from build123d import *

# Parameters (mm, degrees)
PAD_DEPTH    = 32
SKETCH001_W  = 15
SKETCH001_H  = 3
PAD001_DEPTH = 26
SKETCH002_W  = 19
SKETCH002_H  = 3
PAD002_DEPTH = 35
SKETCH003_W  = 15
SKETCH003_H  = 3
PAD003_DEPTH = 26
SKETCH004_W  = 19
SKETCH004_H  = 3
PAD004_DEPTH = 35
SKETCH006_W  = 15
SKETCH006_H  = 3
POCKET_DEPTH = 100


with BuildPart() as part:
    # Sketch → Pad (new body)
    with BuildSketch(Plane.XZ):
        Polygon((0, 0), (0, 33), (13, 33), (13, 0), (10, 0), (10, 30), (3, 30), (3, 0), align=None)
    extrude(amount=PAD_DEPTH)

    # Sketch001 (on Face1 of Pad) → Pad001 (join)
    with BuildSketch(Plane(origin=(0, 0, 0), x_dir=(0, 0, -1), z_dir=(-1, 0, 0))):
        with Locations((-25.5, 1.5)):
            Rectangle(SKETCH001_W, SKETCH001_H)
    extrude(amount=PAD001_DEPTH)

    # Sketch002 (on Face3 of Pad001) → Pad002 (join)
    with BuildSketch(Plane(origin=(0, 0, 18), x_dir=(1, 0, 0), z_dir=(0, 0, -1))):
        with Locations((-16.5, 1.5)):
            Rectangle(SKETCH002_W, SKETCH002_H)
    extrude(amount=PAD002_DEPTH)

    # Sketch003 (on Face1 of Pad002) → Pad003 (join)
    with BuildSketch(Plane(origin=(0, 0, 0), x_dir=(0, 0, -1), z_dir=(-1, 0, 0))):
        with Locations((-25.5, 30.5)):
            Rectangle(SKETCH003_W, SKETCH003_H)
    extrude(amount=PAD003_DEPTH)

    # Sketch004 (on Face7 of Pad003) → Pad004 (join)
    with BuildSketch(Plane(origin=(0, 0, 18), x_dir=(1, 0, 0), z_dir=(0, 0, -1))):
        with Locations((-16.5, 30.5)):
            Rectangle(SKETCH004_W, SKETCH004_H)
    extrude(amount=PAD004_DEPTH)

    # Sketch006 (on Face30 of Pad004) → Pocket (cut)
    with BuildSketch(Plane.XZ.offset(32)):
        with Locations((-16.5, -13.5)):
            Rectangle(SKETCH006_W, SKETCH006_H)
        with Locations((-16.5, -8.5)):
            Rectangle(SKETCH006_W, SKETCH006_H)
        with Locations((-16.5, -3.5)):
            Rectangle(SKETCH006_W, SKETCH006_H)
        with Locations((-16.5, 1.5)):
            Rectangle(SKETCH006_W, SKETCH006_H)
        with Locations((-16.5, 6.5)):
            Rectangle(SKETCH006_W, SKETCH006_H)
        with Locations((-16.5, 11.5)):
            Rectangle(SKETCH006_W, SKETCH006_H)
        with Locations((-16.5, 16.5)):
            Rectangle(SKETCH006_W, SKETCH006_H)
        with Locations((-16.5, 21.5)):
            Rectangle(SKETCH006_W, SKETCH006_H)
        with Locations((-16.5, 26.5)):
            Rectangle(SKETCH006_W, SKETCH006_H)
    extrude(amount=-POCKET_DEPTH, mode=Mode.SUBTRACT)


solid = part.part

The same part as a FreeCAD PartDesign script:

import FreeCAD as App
import Part
import Sketcher

V = App.Vector
Q = App.Units.Quantity


def add_polygon(sketch, points):
    """Adds a closed chain of lines whose ends are joined by coincident constraints."""
    first, n = sketch.GeometryCount, len(points)
    for a, b in zip(points, points[1:] + points[:1]):
        sketch.addGeometry(Part.LineSegment(App.Vector(*a, 0), App.Vector(*b, 0)), False)
    for i in range(n):
        sketch.addConstraint(Sketcher.Constraint("Coincident", first + i, 2, first + (i + 1) % n, 1))

doc = App.newDocument("Part")
body = doc.addObject("PartDesign::Body", "Body")

# Sketch on XZ plane
sketch1 = body.newObject("Sketcher::SketchObject", "Sketch")
sketch1.AttachmentSupport = (doc.getObject("XZ_Plane"), [""])
sketch1.MapMode = "FlatFace"
add_polygon(sketch1, [(0, 33), (0, 0), (3, 0), (3, 30), (10, 30), (10, 0), (13, 0), (13, 33)])  # lines 0-7
sketch1.addConstraint(Sketcher.Constraint("Vertical", 0))
sketch1.addConstraint(Sketcher.Constraint("Horizontal", 1))
sketch1.addConstraint(Sketcher.Constraint("Vertical", 2))
sketch1.addConstraint(Sketcher.Constraint("Horizontal", 3))
sketch1.addConstraint(Sketcher.Constraint("Vertical", 4))
sketch1.addConstraint(Sketcher.Constraint("Horizontal", 5))
sketch1.addConstraint(Sketcher.Constraint("Vertical", 6))
sketch1.addConstraint(Sketcher.Constraint("Horizontal", 7))
sketch1.addConstraint(Sketcher.Constraint("Coincident", 0, 2, -1, 1))
sketch1.addConstraint(Sketcher.Constraint("PointOnObject", 4, 2, -1))
sketch1.addConstraint(Sketcher.Constraint("Equal", 1, 5))
sketch1.addConstraint(Sketcher.Constraint("DistanceX", 1, 1, 1, 2, Q("3 mm")))
sketch1.addConstraint(Sketcher.Constraint("DistanceX", 3, 1, 3, 2, Q("7 mm")))
sketch1.addConstraint(Sketcher.Constraint("DistanceY", 0, 2, 0, 1, Q("33 mm")))
sketch1.addConstraint(Sketcher.Constraint("DistanceY", 2, 1, 2, 2, Q("30 mm")))
pad1 = body.newObject("PartDesign::Pad", "Pad")
pad1.Profile = sketch1
pad1.Length = 32

# Sketch on YZ plane
sketch2 = body.newObject("Sketcher::SketchObject", "Sketch001")
sketch2.AttachmentSupport = (doc.getObject("YZ_Plane"), [""])
sketch2.MapMode = "FlatFace"
add_polygon(sketch2, [(-3, 33), (0, 33), (0, 18), (-3, 18)])  # lines 0-3
sketch2.addConstraint(Sketcher.Constraint("Horizontal", 0))
sketch2.addConstraint(Sketcher.Constraint("Vertical", 1))
sketch2.addConstraint(Sketcher.Constraint("Horizontal", 2))
sketch2.addConstraint(Sketcher.Constraint("Vertical", 3))
sketch2.addConstraint(Sketcher.Constraint("PointOnObject", 0, 2, -2))
sketch2.addConstraint(Sketcher.Constraint("DistanceX", 0, 1, 0, 2, Q("3 mm")))
sketch2.addConstraint(Sketcher.Constraint("DistanceY", 1, 2, 1, 1, Q("15 mm")))
sketch2.addConstraint(Sketcher.Constraint("DistanceY", -1, 1, 0, 2, Q("33 mm")))
pad2 = body.newObject("PartDesign::Pad", "Pad001")
pad2.Profile = sketch2
pad2.Length = 26
pad2.Reversed = True

# Sketch on XY plane
sketch3 = body.newObject("Sketcher::SketchObject", "Sketch002")
sketch3.AttachmentSupport = (doc.getObject("XY_Plane"), [""])
sketch3.MapMode = "FlatFace"
sketch3.AttachmentOffset = App.Placement(V(0, 0, 18), App.Rotation())
add_polygon(sketch3, [(-26, -3), (-26, 0), (-7, 0), (-7, -3)])  # lines 0-3
sketch3.addConstraint(Sketcher.Constraint("Vertical", 0))
sketch3.addConstraint(Sketcher.Constraint("Horizontal", 1))
sketch3.addConstraint(Sketcher.Constraint("Vertical", 2))
sketch3.addConstraint(Sketcher.Constraint("Horizontal", 3))
sketch3.addConstraint(Sketcher.Constraint("PointOnObject", 0, 2, -1))
sketch3.addConstraint(Sketcher.Constraint("DistanceX", 1, 1, 1, 2, Q("19 mm")))
sketch3.addConstraint(Sketcher.Constraint("DistanceY", 0, 1, 0, 2, Q("3 mm")))
sketch3.addConstraint(Sketcher.Constraint("DistanceX", 0, 2, -1, 1, Q("26 mm")))
pad3 = body.newObject("PartDesign::Pad", "Pad002")
pad3.Profile = sketch3
pad3.Length = 35
pad3.Reversed = True

# Sketch on YZ plane
sketch4 = body.newObject("Sketcher::SketchObject", "Sketch003")
sketch4.AttachmentSupport = (doc.getObject("YZ_Plane"), [""])
sketch4.MapMode = "FlatFace"
add_polygon(sketch4, [(-32, 33), (-29, 33), (-29, 18), (-32, 18)])  # lines 0-3
sketch4.addConstraint(Sketcher.Constraint("Horizontal", 0))
sketch4.addConstraint(Sketcher.Constraint("Vertical", 1))
sketch4.addConstraint(Sketcher.Constraint("Horizontal", 2))
sketch4.addConstraint(Sketcher.Constraint("Vertical", 3))
sketch4.addConstraint(Sketcher.Constraint("DistanceX", 0, 1, 0, 2, Q("3 mm")))
sketch4.addConstraint(Sketcher.Constraint("DistanceY", 1, 2, 1, 1, Q("15 mm")))
sketch4.addConstraint(Sketcher.Constraint("DistanceX", 0, 2, -1, 1, Q("29 mm")))
sketch4.addConstraint(Sketcher.Constraint("DistanceY", -1, 1, 0, 2, Q("33 mm")))
pad4 = body.newObject("PartDesign::Pad", "Pad003")
pad4.Profile = sketch4
pad4.Length = 26
pad4.Reversed = True

# Sketch on XY plane
sketch5 = body.newObject("Sketcher::SketchObject", "Sketch004")
sketch5.AttachmentSupport = (doc.getObject("XY_Plane"), [""])
sketch5.MapMode = "FlatFace"
sketch5.AttachmentOffset = App.Placement(V(0, 0, 18), App.Rotation())
add_polygon(sketch5, [(-26, -32), (-26, -29), (-7, -29), (-7, -32)])  # lines 0-3
sketch5.addConstraint(Sketcher.Constraint("Vertical", 0))
sketch5.addConstraint(Sketcher.Constraint("Horizontal", 1))
sketch5.addConstraint(Sketcher.Constraint("Vertical", 2))
sketch5.addConstraint(Sketcher.Constraint("Horizontal", 3))
sketch5.addConstraint(Sketcher.Constraint("DistanceX", 1, 1, 1, 2, Q("19 mm")))
sketch5.addConstraint(Sketcher.Constraint("DistanceY", 0, 1, 0, 2, Q("3 mm")))
sketch5.addConstraint(Sketcher.Constraint("DistanceX", 0, 2, -1, 1, Q("26 mm")))
sketch5.addConstraint(Sketcher.Constraint("DistanceY", 0, 2, -1, 1, Q("29 mm")))
pad5 = body.newObject("PartDesign::Pad", "Pad004")
pad5.Profile = sketch5
pad5.Length = 35
pad5.Reversed = True

# Sketch on XZ plane
sketch6 = body.newObject("Sketcher::SketchObject", "Sketch005")
sketch6.AttachmentSupport = (doc.getObject("XZ_Plane"), [""])
sketch6.MapMode = "FlatFace"
sketch6.AttachmentOffset = App.Placement(V(0, 0, 32), App.Rotation())
add_polygon(sketch6, [(-24, -12), (-24, -15), (-9, -15), (-9, -12)])  # lines 0-3
add_polygon(sketch6, [(-24, -7), (-24, -10), (-9, -10), (-9, -7)])  # lines 4-7
add_polygon(sketch6, [(-24, -2), (-24, -5), (-9, -5), (-9, -2)])  # lines 8-11
add_polygon(sketch6, [(-24, 3), (-24, 0), (-9, 0), (-9, 3)])  # lines 12-15
add_polygon(sketch6, [(-24, 8), (-24, 5), (-9, 5), (-9, 8)])  # lines 16-19
add_polygon(sketch6, [(-24, 13), (-24, 10), (-9, 10), (-9, 13)])  # lines 20-23
add_polygon(sketch6, [(-24, 18), (-24, 15), (-9, 15), (-9, 18)])  # lines 24-27
add_polygon(sketch6, [(-24, 23), (-24, 20), (-9, 20), (-9, 23)])  # lines 28-31
add_polygon(sketch6, [(-24, 28), (-24, 25), (-9, 25), (-9, 28)])  # lines 32-35
sketch6.addConstraint(Sketcher.Constraint("Vertical", 0))
sketch6.addConstraint(Sketcher.Constraint("Horizontal", 1))
sketch6.addConstraint(Sketcher.Constraint("Vertical", 2))
sketch6.addConstraint(Sketcher.Constraint("Horizontal", 3))
sketch6.addConstraint(Sketcher.Constraint("Vertical", 4))
sketch6.addConstraint(Sketcher.Constraint("Horizontal", 5))
sketch6.addConstraint(Sketcher.Constraint("Vertical", 6))
sketch6.addConstraint(Sketcher.Constraint("Horizontal", 7))
sketch6.addConstraint(Sketcher.Constraint("Vertical", 8))
sketch6.addConstraint(Sketcher.Constraint("Horizontal", 9))
sketch6.addConstraint(Sketcher.Constraint("Vertical", 10))
sketch6.addConstraint(Sketcher.Constraint("Horizontal", 11))
sketch6.addConstraint(Sketcher.Constraint("Vertical", 12))
sketch6.addConstraint(Sketcher.Constraint("Horizontal", 13))
sketch6.addConstraint(Sketcher.Constraint("Vertical", 14))
sketch6.addConstraint(Sketcher.Constraint("Horizontal", 15))
sketch6.addConstraint(Sketcher.Constraint("Vertical", 16))
sketch6.addConstraint(Sketcher.Constraint("Horizontal", 17))
sketch6.addConstraint(Sketcher.Constraint("Vertical", 18))
sketch6.addConstraint(Sketcher.Constraint("Horizontal", 19))
sketch6.addConstraint(Sketcher.Constraint("Vertical", 20))
sketch6.addConstraint(Sketcher.Constraint("Horizontal", 21))
sketch6.addConstraint(Sketcher.Constraint("Vertical", 22))
sketch6.addConstraint(Sketcher.Constraint("Horizontal", 23))
sketch6.addConstraint(Sketcher.Constraint("Vertical", 24))
sketch6.addConstraint(Sketcher.Constraint("Horizontal", 25))
sketch6.addConstraint(Sketcher.Constraint("Vertical", 26))
sketch6.addConstraint(Sketcher.Constraint("Horizontal", 27))
sketch6.addConstraint(Sketcher.Constraint("Vertical", 28))
sketch6.addConstraint(Sketcher.Constraint("Horizontal", 29))
sketch6.addConstraint(Sketcher.Constraint("Vertical", 30))
sketch6.addConstraint(Sketcher.Constraint("Horizontal", 31))
sketch6.addConstraint(Sketcher.Constraint("Vertical", 32))
sketch6.addConstraint(Sketcher.Constraint("Horizontal", 33))
sketch6.addConstraint(Sketcher.Constraint("Vertical", 34))
sketch6.addConstraint(Sketcher.Constraint("Horizontal", 35))
sketch6.addConstraint(Sketcher.Constraint("Symmetric", 8, 2, 16, 2, -1))
sketch6.addConstraint(Sketcher.Constraint("Symmetric", 4, 2, 20, 2, -1))
sketch6.addConstraint(Sketcher.Constraint("Symmetric", 0, 2, 24, 2, -1))
sketch6.addConstraint(Sketcher.Constraint("PointOnObject", 12, 2, -1))
sketch6.addConstraint(Sketcher.Constraint("Vertical", 3, 2, 4, 2))
sketch6.addConstraint(Sketcher.Constraint("Vertical", 2, 2, 5, 2))
sketch6.addConstraint(Sketcher.Constraint("Vertical", 7, 2, 8, 2))
sketch6.addConstraint(Sketcher.Constraint("Vertical", 6, 2, 9, 2))
sketch6.addConstraint(Sketcher.Constraint("Vertical", 11, 2, 12, 2))
sketch6.addConstraint(Sketcher.Constraint("Vertical", 10, 2, 13, 2))
sketch6.addConstraint(Sketcher.Constraint("Vertical", 14, 2, 17, 2))
sketch6.addConstraint(Sketcher.Constraint("Vertical", 18, 2, 21, 2))
sketch6.addConstraint(Sketcher.Constraint("Vertical", 22, 2, 25, 2))
sketch6.addConstraint(Sketcher.Constraint("Vertical", 27, 2, 28, 2))
sketch6.addConstraint(Sketcher.Constraint("Vertical", 26, 2, 29, 2))
sketch6.addConstraint(Sketcher.Constraint("Vertical", 31, 2, 32, 2))
sketch6.addConstraint(Sketcher.Constraint("Vertical", 30, 2, 33, 2))
sketch6.addConstraint(Sketcher.Constraint("Equal", 2, 4))
sketch6.addConstraint(Sketcher.Constraint("Equal", 6, 8))
sketch6.addConstraint(Sketcher.Constraint("Equal", 10, 12))
sketch6.addConstraint(Sketcher.Constraint("Equal", 14, 16))
sketch6.addConstraint(Sketcher.Constraint("Equal", 18, 20))
sketch6.addConstraint(Sketcher.Constraint("Equal", 22, 24))
sketch6.addConstraint(Sketcher.Constraint("Equal", 26, 28))
sketch6.addConstraint(Sketcher.Constraint("Equal", 30, 32))
sketch6.addConstraint(Sketcher.Constraint("DistanceX", 1, 1, 1, 2, Q("15 mm")))
sketch6.addConstraint(Sketcher.Constraint("DistanceY", 0, 2, 0, 1, Q("3 mm")))
sketch6.addConstraint(Sketcher.Constraint("DistanceX", 0, 2, -1, 1, Q("24 mm")))
sketch6.addConstraint(Sketcher.Constraint("DistanceY", 0, 2, -1, 1, Q("15 mm")))
sketch6.addConstraint(Sketcher.Constraint("DistanceY", 4, 2, -1, 1, Q("10 mm")))
sketch6.addConstraint(Sketcher.Constraint("DistanceY", 8, 2, -1, 1, Q("5 mm")))
sketch6.addConstraint(Sketcher.Constraint("DistanceY", -1, 1, 28, 2, Q("20 mm")))
sketch6.addConstraint(Sketcher.Constraint("DistanceY", -1, 1, 32, 2, Q("25 mm")))
pocket1 = body.newObject("PartDesign::Pocket", "Pocket")
pocket1.Profile = sketch6
pocket1.Length = 100

doc.recompute()
